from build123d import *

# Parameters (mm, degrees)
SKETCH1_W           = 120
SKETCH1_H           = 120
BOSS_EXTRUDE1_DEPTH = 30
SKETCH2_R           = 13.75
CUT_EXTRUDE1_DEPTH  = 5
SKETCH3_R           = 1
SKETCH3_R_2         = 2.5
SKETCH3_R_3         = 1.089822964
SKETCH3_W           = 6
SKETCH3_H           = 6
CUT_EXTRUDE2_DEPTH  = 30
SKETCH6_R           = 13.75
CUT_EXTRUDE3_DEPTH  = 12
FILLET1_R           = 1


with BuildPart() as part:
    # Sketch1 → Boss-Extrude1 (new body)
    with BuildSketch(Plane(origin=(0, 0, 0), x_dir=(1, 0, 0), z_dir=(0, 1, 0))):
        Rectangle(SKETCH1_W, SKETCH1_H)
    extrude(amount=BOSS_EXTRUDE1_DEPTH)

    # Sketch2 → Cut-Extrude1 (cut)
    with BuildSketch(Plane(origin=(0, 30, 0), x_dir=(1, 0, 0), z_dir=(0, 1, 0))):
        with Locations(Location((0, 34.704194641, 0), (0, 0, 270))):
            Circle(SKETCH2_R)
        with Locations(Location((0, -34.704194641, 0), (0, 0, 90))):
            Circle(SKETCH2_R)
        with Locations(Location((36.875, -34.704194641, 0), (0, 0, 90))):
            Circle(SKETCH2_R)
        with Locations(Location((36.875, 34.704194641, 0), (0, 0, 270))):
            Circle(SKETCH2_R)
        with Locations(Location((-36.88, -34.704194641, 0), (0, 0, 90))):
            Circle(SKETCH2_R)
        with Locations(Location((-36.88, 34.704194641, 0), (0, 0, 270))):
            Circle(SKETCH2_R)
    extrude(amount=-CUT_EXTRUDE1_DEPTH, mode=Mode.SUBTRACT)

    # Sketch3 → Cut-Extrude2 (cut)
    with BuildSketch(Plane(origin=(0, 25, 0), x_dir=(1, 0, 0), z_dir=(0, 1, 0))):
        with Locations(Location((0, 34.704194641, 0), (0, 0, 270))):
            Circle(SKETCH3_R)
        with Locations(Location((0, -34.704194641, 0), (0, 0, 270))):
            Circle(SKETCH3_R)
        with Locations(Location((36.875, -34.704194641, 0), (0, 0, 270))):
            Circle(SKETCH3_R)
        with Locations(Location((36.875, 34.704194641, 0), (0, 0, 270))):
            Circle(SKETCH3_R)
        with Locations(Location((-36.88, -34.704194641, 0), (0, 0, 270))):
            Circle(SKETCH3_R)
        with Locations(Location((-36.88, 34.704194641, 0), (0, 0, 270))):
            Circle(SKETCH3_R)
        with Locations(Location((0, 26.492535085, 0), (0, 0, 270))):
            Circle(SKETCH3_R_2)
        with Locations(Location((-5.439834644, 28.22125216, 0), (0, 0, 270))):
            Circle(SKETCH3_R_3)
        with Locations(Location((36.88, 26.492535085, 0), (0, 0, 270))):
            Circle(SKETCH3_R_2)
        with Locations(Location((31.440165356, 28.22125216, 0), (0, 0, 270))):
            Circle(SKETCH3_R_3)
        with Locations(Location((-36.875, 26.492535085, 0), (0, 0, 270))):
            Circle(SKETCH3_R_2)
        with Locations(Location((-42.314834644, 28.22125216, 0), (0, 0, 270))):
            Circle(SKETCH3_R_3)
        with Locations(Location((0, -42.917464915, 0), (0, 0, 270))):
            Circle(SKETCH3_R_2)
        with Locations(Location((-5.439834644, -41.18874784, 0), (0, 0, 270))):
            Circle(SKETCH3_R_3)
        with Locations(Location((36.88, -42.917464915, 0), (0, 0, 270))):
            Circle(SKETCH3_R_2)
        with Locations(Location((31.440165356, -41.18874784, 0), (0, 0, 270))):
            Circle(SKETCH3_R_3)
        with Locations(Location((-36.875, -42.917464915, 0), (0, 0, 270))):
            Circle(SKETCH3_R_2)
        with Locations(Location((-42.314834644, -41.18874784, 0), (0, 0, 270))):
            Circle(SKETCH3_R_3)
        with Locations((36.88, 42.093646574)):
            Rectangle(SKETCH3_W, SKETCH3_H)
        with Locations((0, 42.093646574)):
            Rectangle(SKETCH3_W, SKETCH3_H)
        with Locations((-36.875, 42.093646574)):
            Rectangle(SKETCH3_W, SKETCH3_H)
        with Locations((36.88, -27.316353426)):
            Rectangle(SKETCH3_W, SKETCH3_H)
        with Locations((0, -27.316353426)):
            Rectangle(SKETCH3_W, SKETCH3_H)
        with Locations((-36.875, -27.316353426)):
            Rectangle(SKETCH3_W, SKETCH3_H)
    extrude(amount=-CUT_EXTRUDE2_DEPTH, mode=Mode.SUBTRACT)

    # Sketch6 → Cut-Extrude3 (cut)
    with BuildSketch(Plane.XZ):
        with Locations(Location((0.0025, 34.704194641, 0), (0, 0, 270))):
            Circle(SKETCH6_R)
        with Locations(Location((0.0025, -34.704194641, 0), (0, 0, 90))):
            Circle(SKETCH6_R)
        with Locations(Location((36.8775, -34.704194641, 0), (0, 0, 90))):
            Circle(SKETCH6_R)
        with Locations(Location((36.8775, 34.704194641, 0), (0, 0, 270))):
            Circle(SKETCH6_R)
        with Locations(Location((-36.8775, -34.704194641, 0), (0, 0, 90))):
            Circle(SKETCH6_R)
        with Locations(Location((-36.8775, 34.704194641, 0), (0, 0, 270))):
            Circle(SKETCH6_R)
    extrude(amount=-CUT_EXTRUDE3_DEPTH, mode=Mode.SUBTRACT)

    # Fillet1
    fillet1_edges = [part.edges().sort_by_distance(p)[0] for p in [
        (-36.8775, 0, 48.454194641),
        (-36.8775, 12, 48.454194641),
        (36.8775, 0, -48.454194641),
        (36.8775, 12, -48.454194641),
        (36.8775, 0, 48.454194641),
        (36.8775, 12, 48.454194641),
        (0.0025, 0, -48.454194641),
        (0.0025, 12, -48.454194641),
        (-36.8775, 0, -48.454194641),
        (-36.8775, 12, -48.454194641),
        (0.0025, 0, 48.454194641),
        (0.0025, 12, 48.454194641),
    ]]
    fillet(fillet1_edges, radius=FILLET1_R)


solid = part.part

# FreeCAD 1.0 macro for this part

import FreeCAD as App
import Part
import Sketcher

V = App.Vector


def edges_at(feature, points):
    """Names of the edges that pass closest to the given points."""
    edges = feature.Shape.Edges
    near = lambda p: min(range(len(edges)), key=lambda i: edges[i].distToShape(Part.Vertex(*p))[0])
    return sorted({f"Edge{near(p) + 1}" for p in points})

doc = App.newDocument("Part")
params = doc.addObject("Spreadsheet::Sheet", "Params")
for row, (alias, value) in enumerate([
    ("sketch1_width", "120 mm"),
    ("pad1_length", "30 mm"),
    ("sketch2_diameter", "27.5 mm"),
    ("pocket1_length", "5 mm"),
    ("sketch3_diameter", "2 mm"),
    ("sketch3_diameter2", "5 mm"),
    ("sketch3_width", "6 mm"),
    ("pocket2_length", "30 mm"),
    ("sketch4_diameter", "27.5 mm"),
    ("pocket3_length", "12 mm"),
    ("fillet_radius", "1 mm"),
], start=1):
    params.set(f"A{row}", alias)
    params.set(f"B{row}", "=" + value)
    params.setAlias(f"B{row}", alias)

body = doc.addObject("PartDesign::Body", "Body")

# Sketch on XZ plane
sketch1 = body.newObject("Sketcher::SketchObject", "Sketch")
sketch1.AttachmentSupport = (doc.getObject("XZ_Plane"), [""])
sketch1.MapMode = "FlatFace"
sketch1.addGeometry([
    Part.LineSegment(V(-60, -60, 0), V(-60, 60, 0)),
    Part.LineSegment(V(-60, 60, 0), V(60, 60, 0)),
    Part.LineSegment(V(60, 60, 0), V(60, -60, 0)),
    Part.LineSegment(V(60, -60, 0), V(-60, -60, 0)),
], False)
sketch1.addConstraint([
    Sketcher.Constraint("Coincident", 0, 2, 1, 1),
    Sketcher.Constraint("Coincident", 1, 2, 2, 1),
    Sketcher.Constraint("Coincident", 2, 2, 3, 1),
    Sketcher.Constraint("Coincident", 3, 2, 0, 1),
    Sketcher.Constraint("Vertical", 0),
    Sketcher.Constraint("Horizontal", 1),
    Sketcher.Constraint("Vertical", 2),
    Sketcher.Constraint("Horizontal", 3),
    Sketcher.Constraint("Symmetric", 0, 2, 2, 2, -1, 1),
    Sketcher.Constraint("Equal", 3, 0),
    Sketcher.Constraint("DistanceX", 1, 1, 1, 2, 120.0),
])
sketch1.setExpression("Constraints[10]", "Params.sketch1_width")
pad1 = body.newObject("PartDesign::Pad", "Pad")
pad1.Profile = sketch1
pad1.setExpression("Length", "Params.pad1_length")
pad1.Reversed = True

# Sketch on XZ plane
sketch2 = body.newObject("Sketcher::SketchObject", "Sketch001")
sketch2.AttachmentSupport = (doc.getObject("XZ_Plane"), [""])
sketch2.MapMode = "FlatFace"
sketch2.AttachmentOffset = App.Placement(V(0, 0, -30), App.Rotation())
sketch2.addGeometry([
    Part.Circle(V(0, -35, 0), V(0, 0, 1), 14),  # 0
    Part.Circle(V(0, 35, 0), V(0, 0, 1), 14),  # 1
    Part.Circle(V(37, 35, 0), V(0, 0, 1), 14),  # 2
    Part.Circle(V(37, -35, 0), V(0, 0, 1), 14),  # 3
    Part.Circle(V(-37, 35, 0), V(0, 0, 1), 14),  # 4
    Part.Circle(V(-37, -35, 0), V(0, 0, 1), 14),  # 5
], False)
sketch2.addConstraint([
    Sketcher.Constraint("Equal", 0, 1),
    Sketcher.Constraint("Equal", 1, 2),
    Sketcher.Constraint("Equal", 2, 3),
    Sketcher.Constraint("Equal", 3, 4),
    Sketcher.Constraint("Equal", 4, 5),
    Sketcher.Constraint("Symmetric", 0, 3, 1, 3, -1, 1),
    Sketcher.Constraint("Symmetric", 2, 3, 3, 3, -1),
    Sketcher.Constraint("Symmetric", 4, 3, 5, 3, -1),
    Sketcher.Constraint("PointOnObject", 0, 3, -2),
    Sketcher.Constraint("Horizontal", 1, 3, 2, 3),
    Sketcher.Constraint("Horizontal", 2, 3, 4, 3),
    Sketcher.Constraint("Diameter", 0, 27.5),
    Sketcher.Constraint("DistanceX", 4, 3, -1, 1, 36.88),
    Sketcher.Constraint("DistanceX", -1, 1, 2, 3, 36.875),
    Sketcher.Constraint("DistanceY", 0, 3, 1, 3, 69.408389),
])
sketch2.setExpression("Constraints[11]", "Params.sketch2_diameter")
pocket1 = body.newObject("PartDesign::Pocket", "Pocket")
pocket1.Profile = sketch2
pocket1.setExpression("Length", "Params.pocket1_length")
pocket1.Reversed = True

# Sketch on XZ plane
sketch3 = body.newObject("Sketcher::SketchObject", "Sketch002")
sketch3.AttachmentSupport = (doc.getObject("XZ_Plane"), [""])
sketch3.MapMode = "FlatFace"
sketch3.AttachmentOffset = App.Placement(V(0, 0, -25), App.Rotation())
sketch3.addGeometry([
    Part.Circle(V(0, -34.7, 0), V(0, 0, 1), 1),  # 0
    Part.Circle(V(0, 34.7, 0), V(0, 0, 1), 1),  # 1
    Part.Circle(V(36.9, 34.7, 0), V(0, 0, 1), 1),  # 2
    Part.Circle(V(36.9, -34.7, 0), V(0, 0, 1), 1),  # 3
    Part.Circle(V(-36.9, 34.7, 0), V(0, 0, 1), 1),  # 4
    Part.Circle(V(-36.9, -34.7, 0), V(0, 0, 1), 1),  # 5
    Part.Circle(V(0, -26.5, 0), V(0, 0, 1), 2.5),  # 6
    Part.Circle(V(-5.4, -28.2, 0), V(0, 0, 1), 1.1),  # 7
    Part.Circle(V(36.9, -26.5, 0), V(0, 0, 1), 2.5),  # 8
    Part.Circle(V(31.4, -28.2, 0), V(0, 0, 1), 1.1),  # 9
    Part.Circle(V(-36.9, -26.5, 0), V(0, 0, 1), 2.5),  # 10
    Part.Circle(V(-42.3, -28.2, 0), V(0, 0, 1), 1.1),  # 11
    Part.Circle(V(0, 42.9, 0), V(0, 0, 1), 2.5),  # 12
    Part.Circle(V(-5.4, 41.2, 0), V(0, 0, 1), 1.1),  # 13
    Part.Circle(V(36.9, 42.9, 0), V(0, 0, 1), 2.5),  # 14
    Part.Circle(V(31.4, 41.2, 0), V(0, 0, 1), 1.1),  # 15
    Part.Circle(V(-36.9, 42.9, 0), V(0, 0, 1), 2.5),  # 16
    Part.Circle(V(-42.3, 41.2, 0), V(0, 0, 1), 1.1),  # 17
    Part.LineSegment(V(33.9, -45.1, 0), V(33.9, -39.1, 0)),  # 18
    Part.LineSegment(V(33.9, -39.1, 0), V(39.9, -39.1, 0)),  # 19
    Part.LineSegment(V(39.9, -39.1, 0), V(39.9, -45.1, 0)),  # 20
    Part.LineSegment(V(39.9, -45.1, 0), V(33.9, -45.1, 0)),  # 21
    Part.LineSegment(V(-3, -45.1, 0), V(-3, -39.1, 0)),  # 22
    Part.LineSegment(V(-3, -39.1, 0), V(3, -39.1, 0)),  # 23
    Part.LineSegment(V(3, -39.1, 0), V(3, -45.1, 0)),  # 24
    Part.LineSegment(V(3, -45.1, 0), V(-3, -45.1, 0)),  # 25
    Part.LineSegment(V(-39.9, -45.1, 0), V(-39.9, -39.1, 0)),  # 26
    Part.LineSegment(V(-39.9, -39.1, 0), V(-33.9, -39.1, 0)),  # 27
    Part.LineSegment(V(-33.9, -39.1, 0), V(-33.9, -45.1, 0)),  # 28
    Part.LineSegment(V(-33.9, -45.1, 0), V(-39.9, -45.1, 0)),  # 29
    Part.LineSegment(V(33.9, 24.3, 0), V(33.9, 30.3, 0)),  # 30
    Part.LineSegment(V(33.9, 30.3, 0), V(39.9, 30.3, 0)),  # 31
    Part.LineSegment(V(39.9, 30.3, 0), V(39.9, 24.3, 0)),  # 32
    Part.LineSegment(V(39.9, 24.3, 0), V(33.9, 24.3, 0)),  # 33
    Part.LineSegment(V(-3, 24.3, 0), V(-3, 30.3, 0)),  # 34
    Part.LineSegment(V(-3, 30.3, 0), V(3, 30.3, 0)),  # 35
    Part.LineSegment(V(3, 30.3, 0), V(3, 24.3, 0)),  # 36
    Part.LineSegment(V(3, 24.3, 0), V(-3, 24.3, 0)),  # 37
    Part.LineSegment(V(-39.9, 24.3, 0), V(-39.9, 30.3, 0)),  # 38
    Part.LineSegment(V(-39.9, 30.3, 0), V(-33.9, 30.3, 0)),  # 39
    Part.LineSegment(V(-33.9, 30.3, 0), V(-33.9, 24.3, 0)),  # 40
    Part.LineSegment(V(-33.9, 24.3, 0), V(-39.9, 24.3, 0)),  # 41
], False)
sketch3.addConstraint([
    Sketcher.Constraint("Coincident", 18, 2, 19, 1),
    Sketcher.Constraint("Coincident", 19, 2, 20, 1),
    Sketcher.Constraint("Coincident", 20, 2, 21, 1),
    Sketcher.Constraint("Coincident", 21, 2, 18, 1),
    Sketcher.Constraint("Coincident", 22, 2, 23, 1),
    Sketcher.Constraint("Coincident", 23, 2, 24, 1),
    Sketcher.Constraint("Coincident", 24, 2, 25, 1),
    Sketcher.Constraint("Coincident", 25, 2, 22, 1),
    Sketcher.Constraint("Coincident", 26, 2, 27, 1),
    Sketcher.Constraint("Coincident", 27, 2, 28, 1),
    Sketcher.Constraint("Coincident", 28, 2, 29, 1),
    Sketcher.Constraint("Coincident", 29, 2, 26, 1),
    Sketcher.Constraint("Coincident", 30, 2, 31, 1),
    Sketcher.Constraint("Coincident", 31, 2, 32, 1),
    Sketcher.Constraint("Coincident", 32, 2, 33, 1),
    Sketcher.Constraint("Coincident", 33, 2, 30, 1),
    Sketcher.Constraint("Coincident", 34, 2, 35, 1),
    Sketcher.Constraint("Coincident", 35, 2, 36, 1),
    Sketcher.Constraint("Coincident", 36, 2, 37, 1),
    Sketcher.Constraint("Coincident", 37, 2, 34, 1),
    Sketcher.Constraint("Coincident", 38, 2, 39, 1),
    Sketcher.Constraint("Coincident", 39, 2, 40, 1),
    Sketcher.Constraint("Coincident", 40, 2, 41, 1),
    Sketcher.Constraint("Coincident", 41, 2, 38, 1),
    Sketcher.Constraint("Vertical", 18),
    Sketcher.Constraint("Horizontal", 19),
    Sketcher.Constraint("Vertical", 20),
    Sketcher.Constraint("Horizontal", 21),
    Sketcher.Constraint("Vertical", 22),
    Sketcher.Constraint("Horizontal", 23),
    Sketcher.Constraint("Vertical", 24),
    Sketcher.Constraint("Horizontal", 25),
    Sketcher.Constraint("Vertical", 26),
    Sketcher.Constraint("Horizontal", 27),
    Sketcher.Constraint("Vertical", 28),
    Sketcher.Constraint("Horizontal", 29),
    Sketcher.Constraint("Vertical", 30),
    Sketcher.Constraint("Horizontal", 31),
    Sketcher.Constraint("Vertical", 32),
    Sketcher.Constraint("Horizontal", 33),
    Sketcher.Constraint("Vertical", 34),
    Sketcher.Constraint("Horizontal", 35),
    Sketcher.Constraint("Vertical", 36),
    Sketcher.Constraint("Horizontal", 37),
    Sketcher.Constraint("Vertical", 38),
    Sketcher.Constraint("Horizontal", 39),
    Sketcher.Constraint("Vertical", 40),
    Sketcher.Constraint("Horizontal", 41),
    Sketcher.Constraint("Equal", 0, 1),
    Sketcher.Constraint("Equal", 1, 2),
    Sketcher.Constraint("Equal", 2, 3),
    Sketcher.Constraint("Equal", 3, 4),
    Sketcher.Constraint("Equal", 4, 5),
    Sketcher.Constraint("Equal", 6, 8),
    Sketcher.Constraint("Equal", 7, 9),
    Sketcher.Constraint("Equal", 8, 10),
    Sketcher.Constraint("Equal", 9, 11),
    Sketcher.Constraint("Equal", 10, 12),
    Sketcher.Constraint("Equal", 11, 13),
    Sketcher.Constraint("Equal", 12, 14),
    Sketcher.Constraint("Equal", 13, 15),
    Sketcher.Constraint("Equal", 14, 16),
    Sketcher.Constraint("Equal", 15, 17),
    Sketcher.Constraint("Symmetric", 0, 3, 1, 3, -1, 1),
    Sketcher.Constraint("Symmetric", 2, 3, 3, 3, -1),
    Sketcher.Constraint("Symmetric", 4, 3, 5, 3, -1),
    Sketcher.Constraint("PointOnObject", 0, 3, -2),
    Sketcher.Constraint("PointOnObject", 6, 3, -2),
    Sketcher.Constraint("PointOnObject", 12, 3, -2),
    Sketcher.Constraint("Horizontal", 1, 3, 2, 3),
    Sketcher.Constraint("Horizontal", 2, 3, 4, 3),
    Sketcher.Constraint("Horizontal", 6, 3, 8, 3),
    Sketcher.Constraint("Horizontal", 7, 3, 9, 3),
    Sketcher.Constraint("Horizontal", 8, 3, 10, 3),
    Sketcher.Constraint("Horizontal", 9, 3, 11, 3),
    Sketcher.Constraint("Horizontal", 12, 3, 14, 3),
    Sketcher.Constraint("Horizontal", 13, 3, 15, 3),
    Sketcher.Constraint("Horizontal", 14, 3, 16, 3),
    Sketcher.Constraint("Horizontal", 15, 3, 17, 3),
    Sketcher.Constraint("Horizontal", 19, 2, 22, 2),
    Sketcher.Constraint("Horizontal", 21, 2, 24, 2),
    Sketcher.Constraint("Horizontal", 23, 2, 26, 2),
    Sketcher.Constraint("Horizontal", 25, 2, 28, 2),
    Sketcher.Constraint("Horizontal", 31, 2, 34, 2),
    Sketcher.Constraint("Horizontal", 33, 2, 36, 2),
    Sketcher.Constraint("Horizontal", 35, 2, 38, 2),
    Sketcher.Constraint("Horizontal", 37, 2, 40, 2),
    Sketcher.Constraint("Vertical", 7, 3, 13, 3),
    Sketcher.Constraint("Vertical", 8, 3, 14, 3),
    Sketcher.Constraint("Vertical", 9, 3, 15, 3),
    Sketcher.Constraint("Vertical", 10, 3, 16, 3),
    Sketcher.Constraint("Vertical", 11, 3, 17, 3),
    Sketcher.Constraint("Vertical", 21, 2, 30, 2),
    Sketcher.Constraint("Vertical", 20, 2, 31, 2),
    Sketcher.Constraint("Vertical", 25, 2, 34, 2),
    Sketcher.Constraint("Vertical", 24, 2, 35, 2),
    Sketcher.Constraint("Vertical", 29, 2, 38, 2),
    Sketcher.Constraint("Vertical", 28, 2, 39, 2),
    Sketcher.Constraint("Equal", 21, 23),
    Sketcher.Constraint("Equal", 25, 27),
    Sketcher.Constraint("Equal", 41, 18),
    Sketcher.Constraint("Equal", 28, 30),
    Sketcher.Constraint("Diameter", 0, 2.0),
    Sketcher.Constraint("Diameter", 6, 5.0),
    Sketcher.Constraint("DistanceX", 19, 1, 19, 2, 6.0),
    Sketcher.Constraint("DistanceX", 22, 2, -1, 1, 3.0),
    Sketcher.Constraint("DistanceX", 18, 2, 8, 3, 3.0),
    Sketcher.Constraint("DistanceX", 26, 2, 10, 3, 3.0),
    Sketcher.Constraint("DistanceX", 4, 3, -1, 1, 36.88),
    Sketcher.Constraint("DistanceX", -1, 1, 8, 3, 36.88),
    Sketcher.Constraint("DistanceX", 7, 3, 9, 3, 36.88),
    Sketcher.Constraint("DistanceY", 6, 3, 12, 3, 69.41),
    Sketcher.Constraint("Diameter", 7, 2.179646),
    Sketcher.Constraint("DistanceX", -1, 1, 2, 3, 36.875),
    Sketcher.Constraint("DistanceX", 10, 3, -1, 1, 36.875),
    Sketcher.Constraint("DistanceX", 11, 3, 7, 3, 36.875),
    Sketcher.Constraint("DistanceY", 0, 3, 1, 3, 69.408389),
    Sketcher.Constraint("DistanceY", 0, 3, 6, 3, 8.21166),
    Sketcher.Constraint("DistanceY", 18, 2, 3, 3, 4.389452),
    Sketcher.Constraint("DistanceY", 30, 2, 2, 3, 4.387841),
    Sketcher.Constraint("DistanceX", 7, 3, -1, 1, 5.439835),
    Sketcher.Constraint("DistanceY", 7, 3, -1, 1, 28.221252),
    Sketcher.Constraint("DistanceY", -1, 1, 13, 3, 41.188748),
])
sketch3.setExpression("Constraints[102]", "Params.sketch3_diameter")
sketch3.setExpression("Constraints[103]", "Params.sketch3_diameter2")
sketch3.setExpression("Constraints[104]", "Params.sketch3_width")
pocket2 = body.newObject("PartDesign::Pocket", "Pocket001")
pocket2.Profile = sketch3
pocket2.setExpression("Length", "Params.pocket2_length")
pocket2.Reversed = True

# Sketch on XZ plane
sketch4 = body.newObject("Sketcher::SketchObject", "Sketch003")
sketch4.AttachmentSupport = (doc.getObject("XZ_Plane"), [""])
sketch4.MapMode = "FlatFace"
sketch4.addGeometry([
    Part.Circle(V(0, 35, 0), V(0, 0, 1), 14),  # 0
    Part.Circle(V(0, -35, 0), V(0, 0, 1), 14),  # 1
    Part.Circle(V(37, -35, 0), V(0, 0, 1), 14),  # 2
    Part.Circle(V(37, 35, 0), V(0, 0, 1), 14),  # 3
    Part.Circle(V(-37, -35, 0), V(0, 0, 1), 14),  # 4
    Part.Circle(V(-37, 35, 0), V(0, 0, 1), 14),  # 5
], False)
sketch4.addConstraint([
    Sketcher.Constraint("Equal", 0, 1),
    Sketcher.Constraint("Equal", 1, 2),
    Sketcher.Constraint("Equal", 2, 3),
    Sketcher.Constraint("Equal", 3, 4),
    Sketcher.Constraint("Equal", 4, 5),
    Sketcher.Constraint("Symmetric", 3, 3, 4, 3, -1, 1),
    Sketcher.Constraint("Symmetric", 2, 3, 5, 3, -1, 1),
    Sketcher.Constraint("Symmetric", 2, 3, 4, 3, -2),
    Sketcher.Constraint("Symmetric", 0, 3, 1, 3, -1),
    Sketcher.Constraint("Horizontal", 1, 3, 2, 3),
    Sketcher.Constraint("Diameter", 0, 27.5),
    Sketcher.Constraint("DistanceX", 4, 3, 1, 3, 36.88),
    Sketcher.Constraint("DistanceX", 1, 3, 2, 3, 36.875),
    Sketcher.Constraint("DistanceY", 1, 3, 0, 3, 69.408389),
])
sketch4.setExpression("Constraints[10]", "Params.sketch4_diameter")
pocket3 = body.newObject("PartDesign::Pocket", "Pocket002")
pocket3.Profile = sketch4
pocket3.setExpression("Length", "Params.pocket3_length")
doc.recompute()

fillet = body.newObject("PartDesign::Fillet", "Fillet")
fillet.Base = (pocket3, edges_at(pocket3, [
    (-36.877, 0, 48.454),
    (-36.877, 12, 48.454),
    (36.877, 0, -48.454),
    (36.877, 12, -48.454),
    (36.877, 0, 48.454),
    (36.877, 12, 48.454),
    (0.003, 0, -48.454),
    (0.003, 12, -48.454),
    (-36.877, 0, -48.454),
    (-36.877, 12, -48.454),
    (0.003, 0, 48.454),
    (0.003, 12, 48.454),
]))
fillet.setExpression("Radius", "Params.fillet_radius")

doc.recompute()
